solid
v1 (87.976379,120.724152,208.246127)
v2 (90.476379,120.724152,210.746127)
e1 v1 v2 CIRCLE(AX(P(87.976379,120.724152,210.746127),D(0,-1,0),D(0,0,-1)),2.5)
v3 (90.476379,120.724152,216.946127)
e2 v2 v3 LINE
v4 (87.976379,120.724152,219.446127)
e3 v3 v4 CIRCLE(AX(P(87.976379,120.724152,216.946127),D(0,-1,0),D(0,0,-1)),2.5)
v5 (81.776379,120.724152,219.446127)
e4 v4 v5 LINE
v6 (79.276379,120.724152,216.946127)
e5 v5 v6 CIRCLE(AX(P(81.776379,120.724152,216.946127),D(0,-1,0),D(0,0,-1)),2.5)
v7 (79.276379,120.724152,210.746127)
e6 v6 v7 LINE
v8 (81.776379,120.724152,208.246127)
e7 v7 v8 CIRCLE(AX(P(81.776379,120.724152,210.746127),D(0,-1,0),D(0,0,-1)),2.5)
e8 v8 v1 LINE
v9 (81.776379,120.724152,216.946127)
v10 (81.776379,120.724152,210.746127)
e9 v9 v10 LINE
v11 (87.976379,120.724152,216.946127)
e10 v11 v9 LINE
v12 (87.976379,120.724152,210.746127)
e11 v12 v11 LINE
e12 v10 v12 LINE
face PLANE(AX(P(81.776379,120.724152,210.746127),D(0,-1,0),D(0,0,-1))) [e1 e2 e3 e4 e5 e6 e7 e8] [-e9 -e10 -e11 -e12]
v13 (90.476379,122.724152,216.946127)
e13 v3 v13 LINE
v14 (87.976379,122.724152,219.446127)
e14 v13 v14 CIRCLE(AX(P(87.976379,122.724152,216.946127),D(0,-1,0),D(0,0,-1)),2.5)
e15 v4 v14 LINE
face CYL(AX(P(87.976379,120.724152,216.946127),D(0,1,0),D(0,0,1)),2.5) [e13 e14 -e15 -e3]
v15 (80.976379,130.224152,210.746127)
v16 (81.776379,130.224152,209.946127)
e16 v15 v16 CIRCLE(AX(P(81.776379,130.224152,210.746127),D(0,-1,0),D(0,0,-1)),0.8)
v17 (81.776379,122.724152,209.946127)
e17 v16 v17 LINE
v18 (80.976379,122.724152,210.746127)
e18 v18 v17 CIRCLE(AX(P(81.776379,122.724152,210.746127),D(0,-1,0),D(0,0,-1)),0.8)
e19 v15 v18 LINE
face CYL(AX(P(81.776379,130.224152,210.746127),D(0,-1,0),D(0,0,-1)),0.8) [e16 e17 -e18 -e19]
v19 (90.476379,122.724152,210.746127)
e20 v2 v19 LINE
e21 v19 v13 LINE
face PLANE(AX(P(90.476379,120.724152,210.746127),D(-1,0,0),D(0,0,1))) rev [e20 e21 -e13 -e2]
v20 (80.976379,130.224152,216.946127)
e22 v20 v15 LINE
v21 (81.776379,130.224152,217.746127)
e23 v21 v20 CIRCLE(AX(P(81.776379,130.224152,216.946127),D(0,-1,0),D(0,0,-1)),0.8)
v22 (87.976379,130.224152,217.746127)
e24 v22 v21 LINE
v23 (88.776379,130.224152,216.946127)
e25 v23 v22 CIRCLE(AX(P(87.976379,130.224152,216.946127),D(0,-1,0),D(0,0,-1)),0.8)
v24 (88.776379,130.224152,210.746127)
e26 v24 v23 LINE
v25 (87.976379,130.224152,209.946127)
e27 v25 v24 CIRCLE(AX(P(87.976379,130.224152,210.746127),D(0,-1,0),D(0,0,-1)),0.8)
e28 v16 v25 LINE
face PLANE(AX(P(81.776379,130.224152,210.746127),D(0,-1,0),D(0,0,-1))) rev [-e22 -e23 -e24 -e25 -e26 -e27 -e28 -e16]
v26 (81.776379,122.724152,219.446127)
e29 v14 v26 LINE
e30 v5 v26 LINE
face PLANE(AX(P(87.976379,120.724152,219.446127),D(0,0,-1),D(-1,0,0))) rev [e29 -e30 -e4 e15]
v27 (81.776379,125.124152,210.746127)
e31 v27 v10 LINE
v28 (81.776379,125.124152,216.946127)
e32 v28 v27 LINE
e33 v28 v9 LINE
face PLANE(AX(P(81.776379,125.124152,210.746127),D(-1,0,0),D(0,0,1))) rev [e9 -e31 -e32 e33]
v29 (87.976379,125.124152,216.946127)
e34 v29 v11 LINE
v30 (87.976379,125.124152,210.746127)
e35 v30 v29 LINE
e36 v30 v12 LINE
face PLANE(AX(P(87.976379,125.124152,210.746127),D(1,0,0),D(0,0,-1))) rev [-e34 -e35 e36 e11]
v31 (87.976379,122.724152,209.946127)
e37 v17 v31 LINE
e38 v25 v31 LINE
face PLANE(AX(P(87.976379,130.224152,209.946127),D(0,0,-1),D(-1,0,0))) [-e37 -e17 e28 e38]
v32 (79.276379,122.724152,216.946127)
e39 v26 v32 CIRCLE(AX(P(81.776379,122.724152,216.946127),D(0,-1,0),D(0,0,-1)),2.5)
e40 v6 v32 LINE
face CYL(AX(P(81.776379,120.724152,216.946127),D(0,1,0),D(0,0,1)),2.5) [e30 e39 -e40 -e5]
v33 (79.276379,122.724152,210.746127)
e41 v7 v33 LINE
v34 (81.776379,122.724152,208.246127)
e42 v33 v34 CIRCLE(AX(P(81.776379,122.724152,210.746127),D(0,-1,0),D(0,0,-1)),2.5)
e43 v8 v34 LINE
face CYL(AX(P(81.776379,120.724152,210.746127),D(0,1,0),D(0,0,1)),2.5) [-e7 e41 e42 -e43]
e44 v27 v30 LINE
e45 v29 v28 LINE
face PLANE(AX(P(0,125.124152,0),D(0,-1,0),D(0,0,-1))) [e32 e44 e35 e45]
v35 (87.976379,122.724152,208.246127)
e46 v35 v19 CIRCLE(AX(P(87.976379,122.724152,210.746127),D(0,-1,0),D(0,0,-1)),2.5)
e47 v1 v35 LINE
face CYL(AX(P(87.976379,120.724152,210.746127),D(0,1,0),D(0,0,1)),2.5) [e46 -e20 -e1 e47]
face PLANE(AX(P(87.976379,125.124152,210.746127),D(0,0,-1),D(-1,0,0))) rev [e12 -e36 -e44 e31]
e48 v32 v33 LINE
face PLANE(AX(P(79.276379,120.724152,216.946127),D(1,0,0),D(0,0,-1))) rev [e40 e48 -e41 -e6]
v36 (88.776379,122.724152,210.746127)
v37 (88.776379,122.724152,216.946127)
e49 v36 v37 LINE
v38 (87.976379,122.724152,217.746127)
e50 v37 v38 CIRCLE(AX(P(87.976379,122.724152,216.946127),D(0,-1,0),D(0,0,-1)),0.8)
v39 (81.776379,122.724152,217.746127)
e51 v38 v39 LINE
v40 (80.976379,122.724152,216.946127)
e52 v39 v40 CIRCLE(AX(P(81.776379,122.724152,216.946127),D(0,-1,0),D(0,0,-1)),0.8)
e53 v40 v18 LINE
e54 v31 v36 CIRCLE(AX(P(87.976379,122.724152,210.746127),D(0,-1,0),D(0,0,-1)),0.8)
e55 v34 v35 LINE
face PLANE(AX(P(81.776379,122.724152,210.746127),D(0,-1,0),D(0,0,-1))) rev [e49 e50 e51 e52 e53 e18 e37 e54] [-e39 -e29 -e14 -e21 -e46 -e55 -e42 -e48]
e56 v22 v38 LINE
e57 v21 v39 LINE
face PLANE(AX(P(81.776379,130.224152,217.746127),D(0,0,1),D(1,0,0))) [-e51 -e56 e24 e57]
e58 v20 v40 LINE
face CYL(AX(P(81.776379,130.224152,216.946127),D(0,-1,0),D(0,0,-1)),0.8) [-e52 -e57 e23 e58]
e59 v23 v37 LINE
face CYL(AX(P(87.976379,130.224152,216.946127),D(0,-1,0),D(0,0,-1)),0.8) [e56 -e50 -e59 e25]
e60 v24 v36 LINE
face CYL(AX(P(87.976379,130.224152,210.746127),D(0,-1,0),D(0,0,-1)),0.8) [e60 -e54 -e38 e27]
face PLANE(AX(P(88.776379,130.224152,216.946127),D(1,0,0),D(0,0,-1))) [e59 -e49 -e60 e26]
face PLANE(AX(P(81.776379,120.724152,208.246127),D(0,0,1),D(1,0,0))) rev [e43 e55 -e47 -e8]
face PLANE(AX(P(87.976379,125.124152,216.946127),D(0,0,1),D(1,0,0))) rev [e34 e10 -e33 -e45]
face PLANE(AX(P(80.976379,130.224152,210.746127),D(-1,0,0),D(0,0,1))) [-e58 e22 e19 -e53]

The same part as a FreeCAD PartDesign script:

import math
import FreeCAD as App
import Part
import Sketcher
from FreeCAD import Vector

doc = App.newDocument("Part")
body = doc.addObject("PartDesign::Body", "Body")

# Sketch on XZ plane
sketch1 = doc.addObject("Sketcher::SketchObject", "Sketch")
body.addObject(sketch1)
sketch1.AttachmentSupport = (doc.XZ_Plane, [""])
sketch1.MapMode = "FlatFace"
sketch1.AttachmentOffset = App.Placement(Vector(0, 0, -122.724152), App.Rotation())
sketch1.addGeometry(Part.LineSegment(Vector(81, 216.9, 0), Vector(81, 210.7, 0)), False)
sketch1.addGeometry(Part.ArcOfCircle(Part.Circle(Vector(81.8, 210.7, 0), Vector(0, 0, 1), 0.8), math.radians(180), math.radians(270)), False)
sketch1.addGeometry(Part.LineSegment(Vector(81.8, 209.9, 0), Vector(88, 209.9, 0)), False)
sketch1.addGeometry(Part.ArcOfCircle(Part.Circle(Vector(88, 210.7, 0), Vector(0, 0, 1), 0.8), math.radians(-90), math.radians(0)), False)
sketch1.addGeometry(Part.LineSegment(Vector(88.8, 210.7, 0), Vector(88.8, 216.9, 0)), False)
sketch1.addGeometry(Part.ArcOfCircle(Part.Circle(Vector(88, 216.9, 0), Vector(0, 0, 1), 0.8), math.radians(0), math.radians(90)), False)
sketch1.addGeometry(Part.LineSegment(Vector(88, 217.7, 0), Vector(81.8, 217.7, 0)), False)
sketch1.addGeometry(Part.ArcOfCircle(Part.Circle(Vector(81.8, 216.9, 0), Vector(0, 0, 1), 0.8), math.radians(90), math.radians(180)), False)
sketch1.addConstraint(Sketcher.Constraint("Tangent", 0, 2, 1, 1))
sketch1.addConstraint(Sketcher.Constraint("Tangent", 1, 2, 2, 1))
sketch1.addConstraint(Sketcher.Constraint("Tangent", 2, 2, 3, 1))
sketch1.addConstraint(Sketcher.Constraint("Tangent", 3, 2, 4, 1))
sketch1.addConstraint(Sketcher.Constraint("Tangent", 4, 2, 5, 1))
sketch1.addConstraint(Sketcher.Constraint("Tangent", 5, 2, 6, 1))
sketch1.addConstraint(Sketcher.Constraint("Tangent", 6, 2, 7, 1))
sketch1.addConstraint(Sketcher.Constraint("Tangent", 7, 2, 0, 1))
sketch1.addConstraint(Sketcher.Constraint("Vertical", 0))
sketch1.addConstraint(Sketcher.Constraint("Horizontal", 2))
sketch1.addConstraint(Sketcher.Constraint("Vertical", 4))
sketch1.addConstraint(Sketcher.Constraint("Horizontal", 6))
sketch1.addConstraint(Sketcher.Constraint("Equal", 1, 3))
sketch1.addConstraint(Sketcher.Constraint("Equal", 3, 5))
sketch1.addConstraint(Sketcher.Constraint("Equal", 5, 7))
sketch1.addConstraint(Sketcher.Constraint("Equal", 6, 0))
sketch1.addConstraint(Sketcher.Constraint("Radius", 1, 0.8))
sketch1.addConstraint(Sketcher.Constraint("DistanceX", 2, 1, 2, 2, 6.2))
sketch1.addConstraint(Sketcher.Constraint("DistanceX", -1, 1, 1, 3, 81.776379))
sketch1.addConstraint(Sketcher.Constraint("DistanceY", -1, 1, 1, 3, 210.746127))
pad1 = doc.addObject("PartDesign::Pad", "Pad")
body.addObject(pad1)
pad1.Profile = sketch1
pad1.Length = 7.5
pad1.Reversed = True

# Sketch on XZ plane
sketch2 = doc.addObject("Sketcher::SketchObject", "Sketch001")
body.addObject(sketch2)
sketch2.AttachmentSupport = (doc.XZ_Plane, [""])
sketch2.MapMode = "FlatFace"
sketch2.AttachmentOffset = App.Placement(Vector(0, 0, -122.724152), App.Rotation())
sketch2.addGeometry(Part.LineSegment(Vector(81.8, 208.2, 0), Vector(88, 208.2, 0)), False)
sketch2.addGeometry(Part.ArcOfCircle(Part.Circle(Vector(88, 210.7, 0), Vector(0, 0, 1), 2.5), math.radians(-90), math.radians(0)), False)
sketch2.addGeometry(Part.LineSegment(Vector(90.5, 210.7, 0), Vector(90.5, 216.9, 0)), False)
sketch2.addGeometry(Part.ArcOfCircle(Part.Circle(Vector(88, 216.9, 0), Vector(0, 0, 1), 2.5), math.radians(0), math.radians(90)), False)
sketch2.addGeometry(Part.LineSegment(Vector(88, 219.4, 0), Vector(81.8, 219.4, 0)), False)
sketch2.addGeometry(Part.ArcOfCircle(Part.Circle(Vector(81.8, 216.9, 0), Vector(0, 0, 1), 2.5), math.radians(90), math.radians(180)), False)
sketch2.addGeometry(Part.LineSegment(Vector(79.3, 216.9, 0), Vector(79.3, 210.7, 0)), False)
sketch2.addGeometry(Part.ArcOfCircle(Part.Circle(Vector(81.8, 210.7, 0), Vector(0, 0, 1), 2.5), math.radians(180), math.radians(270)), False)
sketch2.addConstraint(Sketcher.Constraint("Tangent", 0, 2, 1, 1))
sketch2.addConstraint(Sketcher.Constraint("Tangent", 1, 2, 2, 1))
sketch2.addConstraint(Sketcher.Constraint("Tangent", 2, 2, 3, 1))
sketch2.addConstraint(Sketcher.Constraint("Tangent", 3, 2, 4, 1))
sketch2.addConstraint(Sketcher.Constraint("Tangent", 4, 2, 5, 1))
sketch2.addConstraint(Sketcher.Constraint("Tangent", 5, 2, 6, 1))
sketch2.addConstraint(Sketcher.Constraint("Tangent", 6, 2, 7, 1))
sketch2.addConstraint(Sketcher.Constraint("Tangent", 7, 2, 0, 1))
sketch2.addConstraint(Sketcher.Constraint("Horizontal", 0))
sketch2.addConstraint(Sketcher.Constraint("Vertical", 2))
sketch2.addConstraint(Sketcher.Constraint("Horizontal", 4))
sketch2.addConstraint(Sketcher.Constraint("Vertical", 6))
sketch2.addConstraint(Sketcher.Constraint("Equal", 1, 3))
sketch2.addConstraint(Sketcher.Constraint("Equal", 3, 5))
sketch2.addConstraint(Sketcher.Constraint("Equal", 5, 7))
sketch2.addConstraint(Sketcher.Constraint("Equal", 4, 2))
sketch2.addConstraint(Sketcher.Constraint("Radius", 1, 2.5))
sketch2.addConstraint(Sketcher.Constraint("DistanceX", 0, 1, 0, 2, 6.2))
sketch2.addConstraint(Sketcher.Constraint("DistanceX", -1, 1, 1, 3, 87.976379))
sketch2.addConstraint(Sketcher.Constraint("DistanceY", -1, 1, 1, 3, 210.746127))
pad2 = doc.addObject("PartDesign::Pad", "Pad001")
body.addObject(pad2)
pad2.Profile = sketch2
pad2.Length = 2

# Sketch on XZ plane
sketch3 = doc.addObject("Sketcher::SketchObject", "Sketch002")
body.addObject(sketch3)
sketch3.AttachmentSupport = (doc.XZ_Plane, [""])
sketch3.MapMode = "FlatFace"
sketch3.AttachmentOffset = App.Placement(Vector(0, 0, -120.724152), App.Rotation())
sketch3.addGeometry(Part.LineSegment(Vector(82, 217, 0), Vector(82, 211, 0)), False)
sketch3.addGeometry(Part.LineSegment(Vector(82, 211, 0), Vector(88, 211, 0)), False)
sketch3.addGeometry(Part.LineSegment(Vector(88, 211, 0), Vector(88, 217, 0)), False)
sketch3.addGeometry(Part.LineSegment(Vector(88, 217, 0), Vector(82, 217, 0)), False)
sketch3.addConstraint(Sketcher.Constraint("Coincident", 0, 2, 1, 1))
sketch3.addConstraint(Sketcher.Constraint("Coincident", 1, 2, 2, 1))
sketch3.addConstraint(Sketcher.Constraint("Coincident", 2, 2, 3, 1))
sketch3.addConstraint(Sketcher.Constraint("Coincident", 3, 2, 0, 1))
sketch3.addConstraint(Sketcher.Constraint("Vertical", 0))
sketch3.addConstraint(Sketcher.Constraint("Horizontal", 1))
sketch3.addConstraint(Sketcher.Constraint("Vertical", 2))
sketch3.addConstraint(Sketcher.Constraint("Horizontal", 3))
sketch3.addConstraint(Sketcher.Constraint("Equal", 3, 0))
sketch3.addConstraint(Sketcher.Constraint("DistanceX", 1, 1, 1, 2, 6.2))
sketch3.addConstraint(Sketcher.Constraint("DistanceX", -1, 1, 0, 2, 81.776379))
sketch3.addConstraint(Sketcher.Constraint("DistanceY", -1, 1, 0, 2, 210.746127))
pocket1 = doc.addObject("PartDesign::Pocket", "Pocket")
body.addObject(pocket1)
pocket1.Profile = sketch3
pocket1.Length = 4.4

doc.recompute()
